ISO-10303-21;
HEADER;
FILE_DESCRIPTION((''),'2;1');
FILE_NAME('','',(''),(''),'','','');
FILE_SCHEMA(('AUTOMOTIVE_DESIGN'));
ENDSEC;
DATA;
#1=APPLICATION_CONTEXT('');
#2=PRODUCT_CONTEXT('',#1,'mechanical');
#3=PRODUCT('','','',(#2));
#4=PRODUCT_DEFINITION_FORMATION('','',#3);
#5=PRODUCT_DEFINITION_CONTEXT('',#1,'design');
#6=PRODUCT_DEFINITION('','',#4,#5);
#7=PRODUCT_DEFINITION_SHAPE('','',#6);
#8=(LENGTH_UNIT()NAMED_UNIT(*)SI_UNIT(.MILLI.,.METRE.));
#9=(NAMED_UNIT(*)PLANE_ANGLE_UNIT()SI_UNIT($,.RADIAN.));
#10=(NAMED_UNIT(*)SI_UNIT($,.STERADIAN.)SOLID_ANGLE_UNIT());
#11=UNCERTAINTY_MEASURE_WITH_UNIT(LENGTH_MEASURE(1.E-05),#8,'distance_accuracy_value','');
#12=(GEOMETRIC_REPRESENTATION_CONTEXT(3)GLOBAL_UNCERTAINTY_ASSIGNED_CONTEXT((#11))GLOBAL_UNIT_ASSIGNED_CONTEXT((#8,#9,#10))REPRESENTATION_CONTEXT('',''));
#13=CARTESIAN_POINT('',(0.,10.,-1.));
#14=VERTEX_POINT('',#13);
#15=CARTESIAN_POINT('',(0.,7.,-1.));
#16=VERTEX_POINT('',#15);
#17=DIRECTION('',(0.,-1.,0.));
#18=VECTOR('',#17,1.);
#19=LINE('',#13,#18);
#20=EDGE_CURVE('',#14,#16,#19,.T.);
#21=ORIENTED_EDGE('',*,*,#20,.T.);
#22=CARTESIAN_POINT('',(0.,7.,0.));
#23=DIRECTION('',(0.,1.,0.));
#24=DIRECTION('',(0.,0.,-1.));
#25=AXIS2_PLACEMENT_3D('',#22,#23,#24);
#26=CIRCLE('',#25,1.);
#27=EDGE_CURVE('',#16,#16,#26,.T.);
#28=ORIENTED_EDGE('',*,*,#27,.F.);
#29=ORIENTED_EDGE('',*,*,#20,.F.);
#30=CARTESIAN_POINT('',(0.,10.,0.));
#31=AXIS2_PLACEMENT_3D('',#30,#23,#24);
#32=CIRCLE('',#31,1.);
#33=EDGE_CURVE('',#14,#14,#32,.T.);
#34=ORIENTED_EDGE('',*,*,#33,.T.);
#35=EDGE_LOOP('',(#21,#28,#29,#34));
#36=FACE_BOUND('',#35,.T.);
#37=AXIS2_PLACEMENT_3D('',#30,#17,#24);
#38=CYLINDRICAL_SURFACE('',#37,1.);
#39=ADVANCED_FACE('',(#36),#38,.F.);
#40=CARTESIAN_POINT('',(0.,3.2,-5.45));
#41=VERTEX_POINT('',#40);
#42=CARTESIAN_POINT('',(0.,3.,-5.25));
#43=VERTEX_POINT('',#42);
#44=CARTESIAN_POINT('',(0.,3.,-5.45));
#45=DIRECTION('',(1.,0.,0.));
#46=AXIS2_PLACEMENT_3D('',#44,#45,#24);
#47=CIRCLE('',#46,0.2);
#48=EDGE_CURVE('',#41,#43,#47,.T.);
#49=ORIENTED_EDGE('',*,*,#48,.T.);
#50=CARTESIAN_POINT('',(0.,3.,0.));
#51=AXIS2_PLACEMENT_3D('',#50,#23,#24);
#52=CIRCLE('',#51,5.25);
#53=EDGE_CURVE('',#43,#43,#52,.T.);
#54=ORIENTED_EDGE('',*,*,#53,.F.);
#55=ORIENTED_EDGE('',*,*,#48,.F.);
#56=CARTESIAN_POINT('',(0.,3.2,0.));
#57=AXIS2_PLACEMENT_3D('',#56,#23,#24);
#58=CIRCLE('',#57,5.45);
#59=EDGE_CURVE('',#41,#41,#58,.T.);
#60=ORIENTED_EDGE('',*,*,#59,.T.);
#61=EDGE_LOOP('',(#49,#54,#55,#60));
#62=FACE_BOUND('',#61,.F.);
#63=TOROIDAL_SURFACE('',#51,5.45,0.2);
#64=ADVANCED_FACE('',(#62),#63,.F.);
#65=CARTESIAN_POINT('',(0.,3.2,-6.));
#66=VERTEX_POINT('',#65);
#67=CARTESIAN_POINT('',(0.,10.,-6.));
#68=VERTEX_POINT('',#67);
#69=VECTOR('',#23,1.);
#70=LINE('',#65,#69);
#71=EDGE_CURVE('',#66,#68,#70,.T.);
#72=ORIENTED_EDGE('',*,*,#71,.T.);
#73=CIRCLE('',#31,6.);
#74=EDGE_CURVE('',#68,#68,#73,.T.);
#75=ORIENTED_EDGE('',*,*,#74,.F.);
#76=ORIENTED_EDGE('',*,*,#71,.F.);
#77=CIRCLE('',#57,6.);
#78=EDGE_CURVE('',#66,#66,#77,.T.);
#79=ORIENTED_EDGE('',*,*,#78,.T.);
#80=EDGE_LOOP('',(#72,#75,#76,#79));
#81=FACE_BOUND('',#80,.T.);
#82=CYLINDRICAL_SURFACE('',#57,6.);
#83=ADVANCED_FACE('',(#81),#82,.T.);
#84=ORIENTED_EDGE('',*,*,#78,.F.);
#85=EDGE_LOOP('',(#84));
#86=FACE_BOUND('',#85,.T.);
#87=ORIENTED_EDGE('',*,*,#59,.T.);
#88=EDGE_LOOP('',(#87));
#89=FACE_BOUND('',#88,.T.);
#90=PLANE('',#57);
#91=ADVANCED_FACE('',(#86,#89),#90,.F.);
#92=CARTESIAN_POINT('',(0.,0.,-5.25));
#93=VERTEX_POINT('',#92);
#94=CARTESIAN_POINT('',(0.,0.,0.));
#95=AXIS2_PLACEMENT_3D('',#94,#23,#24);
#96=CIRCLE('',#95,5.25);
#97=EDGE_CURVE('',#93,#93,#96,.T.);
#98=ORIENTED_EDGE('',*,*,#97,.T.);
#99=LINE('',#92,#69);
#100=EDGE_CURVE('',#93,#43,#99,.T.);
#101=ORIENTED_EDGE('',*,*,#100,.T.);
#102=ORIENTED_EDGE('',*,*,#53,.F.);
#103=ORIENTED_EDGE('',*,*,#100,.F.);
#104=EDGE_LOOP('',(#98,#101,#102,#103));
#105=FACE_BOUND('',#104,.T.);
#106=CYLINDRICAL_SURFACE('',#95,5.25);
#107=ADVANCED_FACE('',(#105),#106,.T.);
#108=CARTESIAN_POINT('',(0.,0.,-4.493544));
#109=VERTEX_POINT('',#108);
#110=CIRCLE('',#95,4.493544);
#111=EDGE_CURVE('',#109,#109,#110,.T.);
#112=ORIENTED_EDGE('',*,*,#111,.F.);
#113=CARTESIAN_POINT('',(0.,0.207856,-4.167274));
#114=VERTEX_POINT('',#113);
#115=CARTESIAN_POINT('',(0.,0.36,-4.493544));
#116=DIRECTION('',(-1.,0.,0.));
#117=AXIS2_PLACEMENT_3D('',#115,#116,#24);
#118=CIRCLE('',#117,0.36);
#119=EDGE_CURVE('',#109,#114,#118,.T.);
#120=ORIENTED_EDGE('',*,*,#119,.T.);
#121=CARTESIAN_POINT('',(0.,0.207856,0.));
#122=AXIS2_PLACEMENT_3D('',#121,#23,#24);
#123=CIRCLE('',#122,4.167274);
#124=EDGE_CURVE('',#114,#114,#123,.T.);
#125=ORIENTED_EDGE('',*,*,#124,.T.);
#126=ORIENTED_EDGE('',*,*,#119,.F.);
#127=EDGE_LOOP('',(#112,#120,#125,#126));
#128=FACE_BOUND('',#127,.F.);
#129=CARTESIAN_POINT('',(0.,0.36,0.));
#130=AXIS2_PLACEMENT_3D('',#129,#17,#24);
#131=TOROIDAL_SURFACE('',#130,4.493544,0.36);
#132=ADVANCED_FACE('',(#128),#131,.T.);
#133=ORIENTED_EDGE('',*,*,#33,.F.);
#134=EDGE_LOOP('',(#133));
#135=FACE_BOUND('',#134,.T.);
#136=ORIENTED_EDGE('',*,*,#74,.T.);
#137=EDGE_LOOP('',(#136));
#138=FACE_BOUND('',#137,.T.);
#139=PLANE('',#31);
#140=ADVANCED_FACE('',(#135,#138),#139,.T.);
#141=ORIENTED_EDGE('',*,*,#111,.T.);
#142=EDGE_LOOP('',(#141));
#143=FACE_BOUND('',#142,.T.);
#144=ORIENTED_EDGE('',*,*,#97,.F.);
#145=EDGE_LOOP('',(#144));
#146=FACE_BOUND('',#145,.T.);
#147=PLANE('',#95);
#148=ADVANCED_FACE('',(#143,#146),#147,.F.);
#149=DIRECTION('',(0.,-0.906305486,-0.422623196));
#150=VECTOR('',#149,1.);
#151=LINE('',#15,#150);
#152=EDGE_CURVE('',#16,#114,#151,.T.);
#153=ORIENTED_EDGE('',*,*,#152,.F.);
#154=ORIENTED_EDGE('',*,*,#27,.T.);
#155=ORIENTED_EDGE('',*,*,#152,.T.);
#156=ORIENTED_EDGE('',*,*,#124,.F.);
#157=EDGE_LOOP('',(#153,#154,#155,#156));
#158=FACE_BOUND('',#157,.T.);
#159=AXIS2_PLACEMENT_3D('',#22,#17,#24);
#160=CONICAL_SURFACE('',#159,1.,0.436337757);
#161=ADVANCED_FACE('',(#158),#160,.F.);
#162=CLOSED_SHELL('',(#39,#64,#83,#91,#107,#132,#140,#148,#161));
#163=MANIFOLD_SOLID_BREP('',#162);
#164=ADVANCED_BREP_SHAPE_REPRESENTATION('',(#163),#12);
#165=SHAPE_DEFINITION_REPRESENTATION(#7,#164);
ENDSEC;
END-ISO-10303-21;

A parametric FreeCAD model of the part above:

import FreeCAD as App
import Part
import Sketcher

V = App.Vector
Q = App.Units.Quantity


def edges_at(feature, points):
    """Names of the edges that pass closest to the given points."""
    edges = feature.Shape.Edges
    near = lambda p: min(range(len(edges)), key=lambda i: edges[i].distToShape(Part.Vertex(*p))[0])
    return sorted({f"Edge{near(p) + 1}" for p in points})


def add_polygon(sketch, points):
    """Adds a closed chain of lines whose ends are joined by coincident constraints."""
    first, n = sketch.GeometryCount, len(points)
    for a, b in zip(points, points[1:] + points[:1]):
        sketch.addGeometry(Part.LineSegment(App.Vector(*a, 0), App.Vector(*b, 0)), False)
    for i in range(n):
        sketch.addConstraint(Sketcher.Constraint("Coincident", first + i, 2, first + (i + 1) % n, 1))

doc = App.newDocument("Part")
body = doc.addObject("PartDesign::Body", "Body")

# Sketch on YZ plane
sketch1 = body.newObject("Sketcher::SketchObject", "Sketch")
sketch1.AttachmentSupport = (doc.getObject("YZ_Plane"), [""])
sketch1.MapMode = "FlatFace"
add_polygon(sketch1, [(10, -6), (10, -1), (7, -1), (0, -4.2642), (0, -5.25), (3.2, -5.25), (3.2, -6)])  # lines 0-6
sketch1.addConstraint([
    Sketcher.Constraint("Vertical", 0),
    Sketcher.Constraint("Horizontal", 1),
    Sketcher.Constraint("Vertical", 3),
    Sketcher.Constraint("Horizontal", 4),
    Sketcher.Constraint("Vertical", 5),
    Sketcher.Constraint("Horizontal", 6),
    Sketcher.Constraint("PointOnObject", 2, 2, -2),
    Sketcher.Constraint("DistanceX", 1, 2, 1, 1, 3.0),
    Sketcher.Constraint("DistanceY", 0, 1, 0, 2, 5.0),
    Sketcher.Constraint("Angle", 2, Q("-154.9997 deg")),
    Sketcher.Constraint("DistanceX", 4, 1, 4, 2, 3.2),
    Sketcher.Constraint("DistanceX", 6, 1, 6, 2, 6.8),
    Sketcher.Constraint("DistanceY", 0, 2, -1, 1, 1.0),
    Sketcher.Constraint("DistanceY", 3, 2, -1, 1, 5.25),
])
revolution = body.newObject("PartDesign::Revolution", "Revolution")
revolution.Profile = sketch1
revolution.ReferenceAxis = (sketch1, ["H_Axis"])
revolution.Angle = 360
doc.recompute()

fillet = body.newObject("PartDesign::Fillet", "Fillet")
fillet.Base = (revolution, edges_at(revolution, [(0, 3.2, 5.25)]))
fillet.Radius = 0.2
doc.recompute()

fillet2 = body.newObject("PartDesign::Fillet", "Fillet001")
fillet2.Base = (fillet, edges_at(fillet, [(0, 0, 4.264)]))
fillet2.Radius = 0.36

doc.recompute()
